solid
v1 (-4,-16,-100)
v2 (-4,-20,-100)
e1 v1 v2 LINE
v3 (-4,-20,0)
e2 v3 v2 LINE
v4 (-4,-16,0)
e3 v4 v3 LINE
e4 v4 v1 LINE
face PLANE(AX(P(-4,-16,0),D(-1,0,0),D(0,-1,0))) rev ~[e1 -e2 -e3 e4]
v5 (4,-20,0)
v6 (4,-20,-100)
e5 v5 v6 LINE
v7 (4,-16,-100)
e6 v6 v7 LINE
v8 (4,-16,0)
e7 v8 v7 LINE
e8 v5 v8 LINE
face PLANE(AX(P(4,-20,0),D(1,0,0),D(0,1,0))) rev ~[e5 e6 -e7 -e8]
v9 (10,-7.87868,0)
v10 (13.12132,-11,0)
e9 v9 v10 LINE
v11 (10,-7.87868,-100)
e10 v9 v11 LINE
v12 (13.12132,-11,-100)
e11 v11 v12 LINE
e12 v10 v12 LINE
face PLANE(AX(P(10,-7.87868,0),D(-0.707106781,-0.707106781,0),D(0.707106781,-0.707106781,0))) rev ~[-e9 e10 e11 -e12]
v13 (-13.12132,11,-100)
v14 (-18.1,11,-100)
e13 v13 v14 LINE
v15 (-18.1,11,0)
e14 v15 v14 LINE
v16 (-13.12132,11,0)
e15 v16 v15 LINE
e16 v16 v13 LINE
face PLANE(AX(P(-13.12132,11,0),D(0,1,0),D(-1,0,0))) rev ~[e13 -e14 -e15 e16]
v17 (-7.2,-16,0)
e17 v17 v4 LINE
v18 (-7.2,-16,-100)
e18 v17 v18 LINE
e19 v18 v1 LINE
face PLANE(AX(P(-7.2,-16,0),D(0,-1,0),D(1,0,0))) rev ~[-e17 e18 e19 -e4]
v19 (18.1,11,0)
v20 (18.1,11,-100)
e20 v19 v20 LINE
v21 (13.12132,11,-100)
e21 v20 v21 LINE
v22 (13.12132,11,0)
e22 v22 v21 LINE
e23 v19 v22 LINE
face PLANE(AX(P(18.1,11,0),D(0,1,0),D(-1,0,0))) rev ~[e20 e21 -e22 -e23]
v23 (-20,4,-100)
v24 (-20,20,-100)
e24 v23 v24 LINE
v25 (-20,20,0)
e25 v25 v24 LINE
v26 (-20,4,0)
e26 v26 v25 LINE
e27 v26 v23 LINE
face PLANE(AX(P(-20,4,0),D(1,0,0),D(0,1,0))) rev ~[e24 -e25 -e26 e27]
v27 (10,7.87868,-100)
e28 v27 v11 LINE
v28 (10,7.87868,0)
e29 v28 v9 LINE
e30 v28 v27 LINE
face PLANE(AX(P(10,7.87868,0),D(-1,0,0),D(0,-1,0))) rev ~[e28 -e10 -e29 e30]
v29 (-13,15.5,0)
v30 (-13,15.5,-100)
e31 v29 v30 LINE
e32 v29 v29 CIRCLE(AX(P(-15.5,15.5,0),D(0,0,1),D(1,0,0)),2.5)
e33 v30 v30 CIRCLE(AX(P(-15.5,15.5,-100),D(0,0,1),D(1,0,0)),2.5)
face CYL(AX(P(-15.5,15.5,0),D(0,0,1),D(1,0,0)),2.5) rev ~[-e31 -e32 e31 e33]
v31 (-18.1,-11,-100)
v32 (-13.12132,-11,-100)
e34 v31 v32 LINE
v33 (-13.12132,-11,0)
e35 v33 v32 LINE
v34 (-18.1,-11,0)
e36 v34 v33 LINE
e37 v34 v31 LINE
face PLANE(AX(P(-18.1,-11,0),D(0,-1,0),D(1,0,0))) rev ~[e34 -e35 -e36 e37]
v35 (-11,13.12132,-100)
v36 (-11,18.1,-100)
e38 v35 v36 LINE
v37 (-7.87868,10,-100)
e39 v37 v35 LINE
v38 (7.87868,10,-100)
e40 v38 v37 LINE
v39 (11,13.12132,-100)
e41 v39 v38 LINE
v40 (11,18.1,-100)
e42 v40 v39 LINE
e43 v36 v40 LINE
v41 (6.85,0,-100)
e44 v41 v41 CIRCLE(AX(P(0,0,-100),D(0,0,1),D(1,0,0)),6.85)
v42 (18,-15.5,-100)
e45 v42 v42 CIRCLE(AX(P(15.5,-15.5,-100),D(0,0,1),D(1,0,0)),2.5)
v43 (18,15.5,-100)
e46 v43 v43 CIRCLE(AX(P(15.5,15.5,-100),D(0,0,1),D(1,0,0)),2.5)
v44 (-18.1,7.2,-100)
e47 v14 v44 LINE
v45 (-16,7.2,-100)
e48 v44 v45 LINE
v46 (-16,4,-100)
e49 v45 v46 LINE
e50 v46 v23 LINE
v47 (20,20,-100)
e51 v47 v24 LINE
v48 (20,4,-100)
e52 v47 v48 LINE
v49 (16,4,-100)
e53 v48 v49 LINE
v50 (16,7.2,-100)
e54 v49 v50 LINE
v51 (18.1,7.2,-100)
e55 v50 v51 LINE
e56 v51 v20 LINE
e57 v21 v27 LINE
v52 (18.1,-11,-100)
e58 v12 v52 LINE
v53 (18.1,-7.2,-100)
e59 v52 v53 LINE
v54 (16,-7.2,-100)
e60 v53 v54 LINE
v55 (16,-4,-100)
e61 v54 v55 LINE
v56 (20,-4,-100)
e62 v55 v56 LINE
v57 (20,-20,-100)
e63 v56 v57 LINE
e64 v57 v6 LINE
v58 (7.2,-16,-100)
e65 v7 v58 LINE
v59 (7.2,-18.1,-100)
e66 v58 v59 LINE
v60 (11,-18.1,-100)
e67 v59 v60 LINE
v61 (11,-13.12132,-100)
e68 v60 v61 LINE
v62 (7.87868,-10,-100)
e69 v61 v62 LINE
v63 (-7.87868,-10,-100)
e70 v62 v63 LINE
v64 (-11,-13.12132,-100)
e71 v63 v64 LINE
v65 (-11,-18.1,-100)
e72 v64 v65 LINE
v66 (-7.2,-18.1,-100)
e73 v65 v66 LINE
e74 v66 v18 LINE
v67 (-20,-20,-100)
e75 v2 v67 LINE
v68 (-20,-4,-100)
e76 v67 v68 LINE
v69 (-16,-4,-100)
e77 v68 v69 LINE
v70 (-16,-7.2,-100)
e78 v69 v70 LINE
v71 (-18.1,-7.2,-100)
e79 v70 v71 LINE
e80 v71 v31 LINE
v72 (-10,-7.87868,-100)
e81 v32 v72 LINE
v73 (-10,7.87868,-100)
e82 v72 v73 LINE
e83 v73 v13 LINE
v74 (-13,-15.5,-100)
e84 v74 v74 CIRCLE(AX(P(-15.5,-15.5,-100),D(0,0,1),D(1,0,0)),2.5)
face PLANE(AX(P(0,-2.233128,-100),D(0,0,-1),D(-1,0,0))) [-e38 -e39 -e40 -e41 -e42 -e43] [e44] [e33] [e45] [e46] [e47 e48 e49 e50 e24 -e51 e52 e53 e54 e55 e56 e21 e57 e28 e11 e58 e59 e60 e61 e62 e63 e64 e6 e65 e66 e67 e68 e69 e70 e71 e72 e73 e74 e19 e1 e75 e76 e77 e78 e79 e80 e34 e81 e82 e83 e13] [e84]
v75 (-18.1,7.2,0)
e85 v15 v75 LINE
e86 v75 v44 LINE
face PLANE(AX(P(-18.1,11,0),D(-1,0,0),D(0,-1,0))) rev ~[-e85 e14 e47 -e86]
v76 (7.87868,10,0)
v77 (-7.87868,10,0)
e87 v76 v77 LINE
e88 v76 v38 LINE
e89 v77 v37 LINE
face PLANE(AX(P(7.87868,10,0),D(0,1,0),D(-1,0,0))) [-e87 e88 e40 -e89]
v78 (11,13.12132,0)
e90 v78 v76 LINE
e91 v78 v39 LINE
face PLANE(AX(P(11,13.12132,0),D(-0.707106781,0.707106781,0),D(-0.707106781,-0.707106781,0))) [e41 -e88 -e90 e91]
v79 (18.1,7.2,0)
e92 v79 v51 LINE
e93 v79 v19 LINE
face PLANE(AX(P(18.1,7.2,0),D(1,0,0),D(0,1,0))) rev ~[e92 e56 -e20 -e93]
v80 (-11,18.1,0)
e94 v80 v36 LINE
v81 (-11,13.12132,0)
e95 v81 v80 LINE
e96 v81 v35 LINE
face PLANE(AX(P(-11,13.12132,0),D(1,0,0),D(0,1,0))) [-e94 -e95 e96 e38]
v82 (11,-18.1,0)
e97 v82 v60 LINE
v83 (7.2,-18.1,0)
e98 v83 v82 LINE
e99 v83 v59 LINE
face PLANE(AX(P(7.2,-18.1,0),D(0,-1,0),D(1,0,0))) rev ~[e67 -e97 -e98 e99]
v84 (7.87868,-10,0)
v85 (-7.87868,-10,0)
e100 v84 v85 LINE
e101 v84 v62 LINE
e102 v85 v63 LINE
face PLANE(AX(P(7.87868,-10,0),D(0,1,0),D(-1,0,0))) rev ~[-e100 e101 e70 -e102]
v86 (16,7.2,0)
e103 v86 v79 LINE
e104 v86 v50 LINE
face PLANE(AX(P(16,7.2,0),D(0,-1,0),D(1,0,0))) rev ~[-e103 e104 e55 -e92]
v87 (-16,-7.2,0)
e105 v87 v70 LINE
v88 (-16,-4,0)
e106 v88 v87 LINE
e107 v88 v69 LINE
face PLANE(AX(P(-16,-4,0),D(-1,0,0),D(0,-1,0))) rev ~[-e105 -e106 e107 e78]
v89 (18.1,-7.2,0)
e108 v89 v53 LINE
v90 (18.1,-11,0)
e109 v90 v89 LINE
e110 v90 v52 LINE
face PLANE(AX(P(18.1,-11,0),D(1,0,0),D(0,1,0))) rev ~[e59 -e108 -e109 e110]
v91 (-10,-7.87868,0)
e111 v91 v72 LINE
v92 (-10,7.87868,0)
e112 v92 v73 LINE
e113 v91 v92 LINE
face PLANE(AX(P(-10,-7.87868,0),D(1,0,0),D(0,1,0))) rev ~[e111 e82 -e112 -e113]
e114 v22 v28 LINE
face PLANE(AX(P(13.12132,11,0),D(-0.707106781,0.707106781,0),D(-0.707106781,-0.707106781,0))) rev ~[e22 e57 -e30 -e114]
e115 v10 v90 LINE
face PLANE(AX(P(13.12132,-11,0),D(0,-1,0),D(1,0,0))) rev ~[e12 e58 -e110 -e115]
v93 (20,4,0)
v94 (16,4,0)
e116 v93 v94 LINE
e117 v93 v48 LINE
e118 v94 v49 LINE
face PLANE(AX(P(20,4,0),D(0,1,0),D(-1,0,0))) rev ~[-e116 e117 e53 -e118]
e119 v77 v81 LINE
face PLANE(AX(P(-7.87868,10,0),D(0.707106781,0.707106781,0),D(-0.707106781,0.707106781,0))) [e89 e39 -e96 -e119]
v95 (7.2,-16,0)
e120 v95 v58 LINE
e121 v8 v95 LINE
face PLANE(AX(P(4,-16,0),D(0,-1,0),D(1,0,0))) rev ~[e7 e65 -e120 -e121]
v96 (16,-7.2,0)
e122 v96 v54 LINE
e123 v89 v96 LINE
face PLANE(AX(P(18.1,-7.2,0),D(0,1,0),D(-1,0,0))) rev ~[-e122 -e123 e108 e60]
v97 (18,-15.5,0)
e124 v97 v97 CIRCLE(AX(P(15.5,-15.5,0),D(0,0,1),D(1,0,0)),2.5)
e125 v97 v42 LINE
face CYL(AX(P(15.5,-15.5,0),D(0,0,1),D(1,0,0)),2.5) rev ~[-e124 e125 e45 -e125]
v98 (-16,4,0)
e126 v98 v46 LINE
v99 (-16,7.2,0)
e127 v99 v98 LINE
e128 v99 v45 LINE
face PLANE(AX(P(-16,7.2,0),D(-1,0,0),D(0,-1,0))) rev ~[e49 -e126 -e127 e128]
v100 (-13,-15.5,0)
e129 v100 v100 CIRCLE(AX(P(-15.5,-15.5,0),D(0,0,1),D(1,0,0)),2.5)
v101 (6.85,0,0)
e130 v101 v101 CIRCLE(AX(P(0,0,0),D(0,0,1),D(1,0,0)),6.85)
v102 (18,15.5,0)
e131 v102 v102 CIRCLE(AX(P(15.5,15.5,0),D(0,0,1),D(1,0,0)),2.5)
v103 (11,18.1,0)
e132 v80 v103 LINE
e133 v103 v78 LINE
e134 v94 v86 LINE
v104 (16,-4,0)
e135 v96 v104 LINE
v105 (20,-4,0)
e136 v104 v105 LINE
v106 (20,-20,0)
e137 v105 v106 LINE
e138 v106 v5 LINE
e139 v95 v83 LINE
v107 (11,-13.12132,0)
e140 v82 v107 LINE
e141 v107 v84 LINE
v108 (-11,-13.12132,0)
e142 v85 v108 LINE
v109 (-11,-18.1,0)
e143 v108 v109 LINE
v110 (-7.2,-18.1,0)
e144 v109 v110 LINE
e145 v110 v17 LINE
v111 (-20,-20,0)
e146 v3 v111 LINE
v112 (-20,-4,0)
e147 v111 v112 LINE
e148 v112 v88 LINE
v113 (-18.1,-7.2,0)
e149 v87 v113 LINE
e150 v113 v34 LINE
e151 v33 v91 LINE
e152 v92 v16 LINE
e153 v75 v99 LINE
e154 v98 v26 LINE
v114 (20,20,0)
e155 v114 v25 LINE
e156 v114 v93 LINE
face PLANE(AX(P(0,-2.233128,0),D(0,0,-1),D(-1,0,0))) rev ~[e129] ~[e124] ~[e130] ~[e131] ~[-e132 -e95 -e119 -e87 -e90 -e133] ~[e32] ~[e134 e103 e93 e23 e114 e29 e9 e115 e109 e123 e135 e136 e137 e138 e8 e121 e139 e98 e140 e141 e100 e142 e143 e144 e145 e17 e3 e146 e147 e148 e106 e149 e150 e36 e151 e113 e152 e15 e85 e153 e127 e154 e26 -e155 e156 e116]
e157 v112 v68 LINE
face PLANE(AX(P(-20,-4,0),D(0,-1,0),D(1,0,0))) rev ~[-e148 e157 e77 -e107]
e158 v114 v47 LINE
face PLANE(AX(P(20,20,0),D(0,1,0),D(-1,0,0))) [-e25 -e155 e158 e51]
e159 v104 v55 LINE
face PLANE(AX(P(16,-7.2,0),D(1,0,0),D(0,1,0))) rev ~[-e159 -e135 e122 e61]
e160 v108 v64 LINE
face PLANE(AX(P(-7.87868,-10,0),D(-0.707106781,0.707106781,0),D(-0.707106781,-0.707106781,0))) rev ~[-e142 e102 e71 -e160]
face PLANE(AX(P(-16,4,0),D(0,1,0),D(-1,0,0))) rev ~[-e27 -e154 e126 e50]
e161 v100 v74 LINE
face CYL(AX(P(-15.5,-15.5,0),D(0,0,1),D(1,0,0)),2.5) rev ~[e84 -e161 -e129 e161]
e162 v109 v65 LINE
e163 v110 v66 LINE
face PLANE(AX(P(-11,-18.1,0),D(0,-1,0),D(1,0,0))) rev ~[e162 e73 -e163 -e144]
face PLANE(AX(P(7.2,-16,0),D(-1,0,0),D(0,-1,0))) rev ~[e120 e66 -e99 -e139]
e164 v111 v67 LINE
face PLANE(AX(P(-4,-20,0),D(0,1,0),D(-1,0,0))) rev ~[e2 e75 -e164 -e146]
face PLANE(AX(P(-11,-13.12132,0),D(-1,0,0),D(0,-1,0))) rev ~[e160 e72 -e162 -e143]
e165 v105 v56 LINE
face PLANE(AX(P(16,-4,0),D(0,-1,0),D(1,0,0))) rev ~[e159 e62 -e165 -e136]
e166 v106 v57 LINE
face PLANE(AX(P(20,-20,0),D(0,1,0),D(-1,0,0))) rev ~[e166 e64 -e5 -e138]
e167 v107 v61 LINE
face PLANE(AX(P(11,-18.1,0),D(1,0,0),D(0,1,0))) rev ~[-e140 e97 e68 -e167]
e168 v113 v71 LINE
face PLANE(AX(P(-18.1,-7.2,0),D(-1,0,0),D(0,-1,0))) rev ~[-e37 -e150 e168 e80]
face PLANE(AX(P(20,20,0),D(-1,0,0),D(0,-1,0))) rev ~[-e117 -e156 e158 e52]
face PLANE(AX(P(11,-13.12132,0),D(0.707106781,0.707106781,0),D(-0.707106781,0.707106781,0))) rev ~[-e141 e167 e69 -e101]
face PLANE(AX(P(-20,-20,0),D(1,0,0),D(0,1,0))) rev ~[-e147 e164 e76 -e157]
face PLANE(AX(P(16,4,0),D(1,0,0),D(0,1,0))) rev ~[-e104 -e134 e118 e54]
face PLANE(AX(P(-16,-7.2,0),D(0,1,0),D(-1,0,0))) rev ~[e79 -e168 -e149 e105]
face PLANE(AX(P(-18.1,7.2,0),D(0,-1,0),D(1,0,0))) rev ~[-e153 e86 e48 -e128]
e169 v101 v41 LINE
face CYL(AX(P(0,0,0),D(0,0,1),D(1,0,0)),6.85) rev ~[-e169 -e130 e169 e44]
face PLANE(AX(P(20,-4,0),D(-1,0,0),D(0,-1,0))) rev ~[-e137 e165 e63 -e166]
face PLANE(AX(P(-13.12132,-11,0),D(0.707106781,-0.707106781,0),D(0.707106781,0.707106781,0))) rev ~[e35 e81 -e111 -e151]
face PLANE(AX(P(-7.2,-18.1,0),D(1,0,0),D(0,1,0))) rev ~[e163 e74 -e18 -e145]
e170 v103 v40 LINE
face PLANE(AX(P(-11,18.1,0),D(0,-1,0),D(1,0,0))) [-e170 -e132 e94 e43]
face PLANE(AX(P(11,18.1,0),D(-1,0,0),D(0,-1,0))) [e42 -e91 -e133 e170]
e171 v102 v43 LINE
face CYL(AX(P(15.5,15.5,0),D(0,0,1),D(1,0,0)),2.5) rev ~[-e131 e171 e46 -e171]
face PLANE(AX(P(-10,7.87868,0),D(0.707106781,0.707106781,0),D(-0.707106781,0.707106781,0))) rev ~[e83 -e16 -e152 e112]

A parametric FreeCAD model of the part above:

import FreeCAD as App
import Part
import Sketcher
from FreeCAD import Vector

doc = App.newDocument("Part")
body = doc.addObject("PartDesign::Body", "Body")

sketch1 = doc.addObject("Sketcher::SketchObject", "Sketch")
body.addObject(sketch1)
sketch1.AttachmentSupport = (doc.XY_Plane, [""])
sketch1.MapMode = "FlatFace"
sketch1.addGeometry([
    Part.LineSegment(Vector(20, 20, 0), Vector(-20, 20, 0)),
    Part.LineSegment(Vector(-20, 20, 0), Vector(-20, 4, 0)),
    Part.LineSegment(Vector(-20, 4, 0), Vector(-16, 4, 0)),
    Part.LineSegment(Vector(-16, 4, 0), Vector(-16, 7.2, 0)),
    Part.LineSegment(Vector(-16, 7.2, 0), Vector(-18.1, 7.2, 0)),
    Part.LineSegment(Vector(-18.1, 7.2, 0), Vector(-18.1, 11, 0)),
    Part.LineSegment(Vector(-18.1, 11, 0), Vector(-13.1, 11, 0)),
    Part.LineSegment(Vector(-13.1, 11, 0), Vector(-10, 7.9, 0)),
    Part.LineSegment(Vector(-10, 7.9, 0), Vector(-10, -7.9, 0)),
    Part.LineSegment(Vector(-10, -7.9, 0), Vector(-13.1, -11, 0)),
    Part.LineSegment(Vector(-13.1, -11, 0), Vector(-18.1, -11, 0)),
    Part.LineSegment(Vector(-18.1, -11, 0), Vector(-18.1, -7.2, 0)),
    Part.LineSegment(Vector(-18.1, -7.2, 0), Vector(-16, -7.2, 0)),
    Part.LineSegment(Vector(-16, -7.2, 0), Vector(-16, -4, 0)),
    Part.LineSegment(Vector(-16, -4, 0), Vector(-20, -4, 0)),
    Part.LineSegment(Vector(-20, -4, 0), Vector(-20, -20, 0)),
    Part.LineSegment(Vector(-20, -20, 0), Vector(-4, -20, 0)),
    Part.LineSegment(Vector(-4, -20, 0), Vector(-4, -16, 0)),
    Part.LineSegment(Vector(-4, -16, 0), Vector(-7.2, -16, 0)),
    Part.LineSegment(Vector(-7.2, -16, 0), Vector(-7.2, -18.1, 0)),
    Part.LineSegment(Vector(-7.2, -18.1, 0), Vector(-11, -18.1, 0)),
    Part.LineSegment(Vector(-11, -18.1, 0), Vector(-11, -13.1, 0)),
    Part.LineSegment(Vector(-11, -13.1, 0), Vector(-7.9, -10, 0)),
    Part.LineSegment(Vector(-7.9, -10, 0), Vector(7.9, -10, 0)),
    Part.LineSegment(Vector(7.9, -10, 0), Vector(11, -13.1, 0)),
    Part.LineSegment(Vector(11, -13.1, 0), Vector(11, -18.1, 0)),
    Part.LineSegment(Vector(11, -18.1, 0), Vector(7.2, -18.1, 0)),
    Part.LineSegment(Vector(7.2, -18.1, 0), Vector(7.2, -16, 0)),
    Part.LineSegment(Vector(7.2, -16, 0), Vector(4, -16, 0)),
    Part.LineSegment(Vector(4, -16, 0), Vector(4, -20, 0)),
    Part.LineSegment(Vector(4, -20, 0), Vector(20, -20, 0)),
    Part.LineSegment(Vector(20, -20, 0), Vector(20, -4, 0)),
    Part.LineSegment(Vector(20, -4, 0), Vector(16, -4, 0)),
    Part.LineSegment(Vector(16, -4, 0), Vector(16, -7.2, 0)),
    Part.LineSegment(Vector(16, -7.2, 0), Vector(18.1, -7.2, 0)),
    Part.LineSegment(Vector(18.1, -7.2, 0), Vector(18.1, -11, 0)),
    Part.LineSegment(Vector(18.1, -11, 0), Vector(13.1, -11, 0)),
    Part.LineSegment(Vector(13.1, -11, 0), Vector(10, -7.9, 0)),
    Part.LineSegment(Vector(10, -7.9, 0), Vector(10, 7.9, 0)),
    Part.LineSegment(Vector(10, 7.9, 0), Vector(13.1, 11, 0)),
    Part.LineSegment(Vector(13.1, 11, 0), Vector(18.1, 11, 0)),
    Part.LineSegment(Vector(18.1, 11, 0), Vector(18.1, 7.2, 0)),
    Part.LineSegment(Vector(18.1, 7.2, 0), Vector(16, 7.2, 0)),
    Part.LineSegment(Vector(16, 7.2, 0), Vector(16, 4, 0)),
    Part.LineSegment(Vector(16, 4, 0), Vector(20, 4, 0)),
    Part.LineSegment(Vector(20, 4, 0), Vector(20, 20, 0)),
    Part.Circle(Vector(15.5, -15.5, 0), Vector(0, 0, 1), 2.5),
    Part.Circle(Vector(-15.5, -15.5, 0), Vector(0, 0, 1), 2.5),
    Part.Circle(Vector(0, 0, 0), Vector(0, 0, 1), 6.8),
    Part.Circle(Vector(15.5, 15.5, 0), Vector(0, 0, 1), 2.5),
    Part.LineSegment(Vector(11, 18.1, 0), Vector(11, 13.1, 0)),
    Part.LineSegment(Vector(11, 13.1, 0), Vector(7.9, 10, 0)),
    Part.LineSegment(Vector(7.9, 10, 0), Vector(-7.9, 10, 0)),
    Part.LineSegment(Vector(-7.9, 10, 0), Vector(-11, 13.1, 0)),
    Part.LineSegment(Vector(-11, 13.1, 0), Vector(-11, 18.1, 0)),
    Part.LineSegment(Vector(-11, 18.1, 0), Vector(11, 18.1, 0)),
    Part.Circle(Vector(-15.5, 15.5, 0), Vector(0, 0, 1), 2.5),
], False)
sketch1.addConstraint([
    Sketcher.Constraint("Coincident", 0, 2, 1, 1),
    Sketcher.Constraint("Coincident", 1, 2, 2, 1),
    Sketcher.Constraint("Coincident", 2, 2, 3, 1),
    Sketcher.Constraint("Coincident", 3, 2, 4, 1),
    Sketcher.Constraint("Coincident", 4, 2, 5, 1),
    Sketcher.Constraint("Coincident", 5, 2, 6, 1),
    Sketcher.Constraint("Coincident", 6, 2, 7, 1),
    Sketcher.Constraint("Coincident", 7, 2, 8, 1),
    Sketcher.Constraint("Coincident", 8, 2, 9, 1),
    Sketcher.Constraint("Coincident", 9, 2, 10, 1),
    Sketcher.Constraint("Coincident", 10, 2, 11, 1),
    Sketcher.Constraint("Coincident", 11, 2, 12, 1),
    Sketcher.Constraint("Coincident", 12, 2, 13, 1),
    Sketcher.Constraint("Coincident", 13, 2, 14, 1),
    Sketcher.Constraint("Coincident", 14, 2, 15, 1),
    Sketcher.Constraint("Coincident", 15, 2, 16, 1),
    Sketcher.Constraint("Coincident", 16, 2, 17, 1),
    Sketcher.Constraint("Coincident", 17, 2, 18, 1),
    Sketcher.Constraint("Coincident", 18, 2, 19, 1),
    Sketcher.Constraint("Coincident", 19, 2, 20, 1),
    Sketcher.Constraint("Coincident", 20, 2, 21, 1),
    Sketcher.Constraint("Coincident", 21, 2, 22, 1),
    Sketcher.Constraint("Coincident", 22, 2, 23, 1),
    Sketcher.Constraint("Coincident", 23, 2, 24, 1),
    Sketcher.Constraint("Coincident", 24, 2, 25, 1),
    Sketcher.Constraint("Coincident", 25, 2, 26, 1),
    Sketcher.Constraint("Coincident", 26, 2, 27, 1),
    Sketcher.Constraint("Coincident", 27, 2, 28, 1),
    Sketcher.Constraint("Coincident", 28, 2, 29, 1),
    Sketcher.Constraint("Coincident", 29, 2, 30, 1),
    Sketcher.Constraint("Coincident", 30, 2, 31, 1),
    Sketcher.Constraint("Coincident", 31, 2, 32, 1),
    Sketcher.Constraint("Coincident", 32, 2, 33, 1),
    Sketcher.Constraint("Coincident", 33, 2, 34, 1),
    Sketcher.Constraint("Coincident", 34, 2, 35, 1),
    Sketcher.Constraint("Coincident", 35, 2, 36, 1),
    Sketcher.Constraint("Coincident", 36, 2, 37, 1),
    Sketcher.Constraint("Coincident", 37, 2, 38, 1),
    Sketcher.Constraint("Coincident", 38, 2, 39, 1),
    Sketcher.Constraint("Coincident", 39, 2, 40, 1),
    Sketcher.Constraint("Coincident", 40, 2, 41, 1),
    Sketcher.Constraint("Coincident", 41, 2, 42, 1),
    Sketcher.Constraint("Coincident", 42, 2, 43, 1),
    Sketcher.Constraint("Coincident", 43, 2, 44, 1),
    Sketcher.Constraint("Coincident", 44, 2, 45, 1),
    Sketcher.Constraint("Coincident", 45, 2, 0, 1),
    Sketcher.Constraint("Coincident", 50, 2, 51, 1),
    Sketcher.Constraint("Coincident", 51, 2, 52, 1),
    Sketcher.Constraint("Coincident", 52, 2, 53, 1),
    Sketcher.Constraint("Coincident", 53, 2, 54, 1),
    Sketcher.Constraint("Coincident", 54, 2, 55, 1),
    Sketcher.Constraint("Coincident", 55, 2, 50, 1),
    Sketcher.Constraint("Horizontal", 0),
    Sketcher.Constraint("Vertical", 1),
    Sketcher.Constraint("Horizontal", 2),
    Sketcher.Constraint("Vertical", 3),
    Sketcher.Constraint("Horizontal", 4),
    Sketcher.Constraint("Vertical", 5),
    Sketcher.Constraint("Horizontal", 6),
    Sketcher.Constraint("Vertical", 8),
    Sketcher.Constraint("Horizontal", 10),
    Sketcher.Constraint("Vertical", 11),
    Sketcher.Constraint("Horizontal", 12),
    Sketcher.Constraint("Vertical", 13),
    Sketcher.Constraint("Horizontal", 14),
    Sketcher.Constraint("Vertical", 15),
    Sketcher.Constraint("Horizontal", 16),
    Sketcher.Constraint("Vertical", 17),
    Sketcher.Constraint("Horizontal", 18),
    Sketcher.Constraint("Vertical", 19),
    Sketcher.Constraint("Horizontal", 20),
    Sketcher.Constraint("Vertical", 21),
    Sketcher.Constraint("Horizontal", 23),
    Sketcher.Constraint("Vertical", 25),
    Sketcher.Constraint("Horizontal", 26),
    Sketcher.Constraint("Vertical", 27),
    Sketcher.Constraint("Horizontal", 28),
    Sketcher.Constraint("Vertical", 29),
    Sketcher.Constraint("Horizontal", 30),
    Sketcher.Constraint("Vertical", 31),
    Sketcher.Constraint("Horizontal", 32),
    Sketcher.Constraint("Vertical", 33),
    Sketcher.Constraint("Horizontal", 34),
    Sketcher.Constraint("Vertical", 35),
    Sketcher.Constraint("Horizontal", 36),
    Sketcher.Constraint("Vertical", 38),
    Sketcher.Constraint("Horizontal", 40),
    Sketcher.Constraint("Vertical", 41),
    Sketcher.Constraint("Horizontal", 42),
    Sketcher.Constraint("Vertical", 43),
    Sketcher.Constraint("Horizontal", 44),
    Sketcher.Constraint("Vertical", 45),
    Sketcher.Constraint("Vertical", 50),
    Sketcher.Constraint("Horizontal", 52),
    Sketcher.Constraint("Vertical", 54),
    Sketcher.Constraint("Horizontal", 55),
    Sketcher.Constraint("Coincident", 48, 3, -1, 1),
    Sketcher.Constraint("Equal", 46, 47),
    Sketcher.Constraint("Equal", 47, 49),
    Sketcher.Constraint("Equal", 49, 56),
    Sketcher.Constraint("Symmetric", 47, 3, 49, 3, -1, 1),
    Sketcher.Constraint("Symmetric", 46, 3, 56, 3, -1, 1),
    Sketcher.Constraint("Symmetric", 0, 2, 30, 2, -1, 1),
    Sketcher.Constraint("Symmetric", 2, 2, 32, 2, -1, 1),
    Sketcher.Constraint("Symmetric", 4, 2, 34, 2, -1, 1),
    Sketcher.Constraint("Symmetric", 6, 2, 36, 2, -1, 1),
    Sketcher.Constraint("Symmetric", 7, 2, 37, 2, -1, 1),
    Sketcher.Constraint("Symmetric", 9, 2, 39, 2, -1, 1),
    Sketcher.Constraint("Symmetric", 11, 2, 41, 2, -1, 1),
    Sketcher.Constraint("Symmetric", 13, 2, 43, 2, -1, 1),
    Sketcher.Constraint("Symmetric", 15, 2, 45, 2, -1, 1),
    Sketcher.Constraint("Symmetric", 21, 2, 50, 2, -1, 1),
    Sketcher.Constraint("Symmetric", 22, 2, 51, 2, -1, 1),
    Sketcher.Constraint("Symmetric", 24, 2, 53, 2, -1, 1),
    Sketcher.Constraint("Symmetric", 46, 3, 47, 3, -2),
    Sketcher.Constraint("Symmetric", 21, 2, 24, 2, -2),
    Sketcher.Constraint("Symmetric", 19, 2, 26, 2, -2),
    Sketcher.Constraint("Symmetric", 17, 2, 28, 2, -2),
    Sketcher.Constraint("Symmetric", 14, 2, 31, 2, -2),
    Sketcher.Constraint("Symmetric", 12, 2, 33, 2, -2),
    Sketcher.Constraint("Symmetric", 10, 2, 35, 2, -2),
    Sketcher.Constraint("Perpendicular", 7, 9),
    Sketcher.Constraint("Parallel", 9, 22),
    Sketcher.Constraint("Perpendicular", 22, 24),
    Sketcher.Constraint("Perpendicular", 37, 39),
    Sketcher.Constraint("Perpendicular", 51, 53),
    Sketcher.Constraint("Horizontal", 8, 2, 37, 2),
    Sketcher.Constraint("Vertical", 6, 2, 9, 2),
    Sketcher.Constraint("Equal", 30, 1),
    Sketcher.Constraint("Equal", 28, 3),
    Sketcher.Constraint("Equal", 26, 5),
    Sketcher.Constraint("Equal", 52, 8),
    Sketcher.Constraint("Equal", 44, 17),
    Sketcher.Constraint("Equal", 42, 19),
    Sketcher.Constraint("Equal", 40, 21),
    Sketcher.Constraint("Equal", 25, 50),
    Sketcher.Constraint("Equal", 9, 22),
    Sketcher.Constraint("Diameter", 46, 5.0),
    Sketcher.Constraint("Diameter", 48, 13.7),
    Sketcher.Constraint("DistanceX", 0, 2, 0, 1, 40.0),
    Sketcher.Constraint("DistanceX", 2, 1, 2, 2, 4.0),
    Sketcher.Constraint("DistanceX", 16, 1, 16, 2, 16.0),
    Sketcher.Constraint("DistanceX", 55, 1, 55, 2, 22.0),
    Sketcher.Constraint("DistanceX", 4, 2, 4, 1, 2.1),
    Sketcher.Constraint("DistanceX", 18, 2, 18, 1, 3.2),
    Sketcher.Constraint("DistanceX", 7, 2, -1, 1, 10.0),
    Sketcher.Constraint("DistanceX", 47, 3, 46, 3, 31.0),
    Sketcher.Constraint("DistanceY", 46, 3, 49, 3, 31.0),
    Sketcher.Constraint("DistanceX", 6, 1, 6, 2, 4.97868),
])
pad1 = doc.addObject("PartDesign::Pad", "Pad")
body.addObject(pad1)
pad1.Profile = sketch1
pad1.Length = 100
pad1.Reversed = True

doc.recompute()
